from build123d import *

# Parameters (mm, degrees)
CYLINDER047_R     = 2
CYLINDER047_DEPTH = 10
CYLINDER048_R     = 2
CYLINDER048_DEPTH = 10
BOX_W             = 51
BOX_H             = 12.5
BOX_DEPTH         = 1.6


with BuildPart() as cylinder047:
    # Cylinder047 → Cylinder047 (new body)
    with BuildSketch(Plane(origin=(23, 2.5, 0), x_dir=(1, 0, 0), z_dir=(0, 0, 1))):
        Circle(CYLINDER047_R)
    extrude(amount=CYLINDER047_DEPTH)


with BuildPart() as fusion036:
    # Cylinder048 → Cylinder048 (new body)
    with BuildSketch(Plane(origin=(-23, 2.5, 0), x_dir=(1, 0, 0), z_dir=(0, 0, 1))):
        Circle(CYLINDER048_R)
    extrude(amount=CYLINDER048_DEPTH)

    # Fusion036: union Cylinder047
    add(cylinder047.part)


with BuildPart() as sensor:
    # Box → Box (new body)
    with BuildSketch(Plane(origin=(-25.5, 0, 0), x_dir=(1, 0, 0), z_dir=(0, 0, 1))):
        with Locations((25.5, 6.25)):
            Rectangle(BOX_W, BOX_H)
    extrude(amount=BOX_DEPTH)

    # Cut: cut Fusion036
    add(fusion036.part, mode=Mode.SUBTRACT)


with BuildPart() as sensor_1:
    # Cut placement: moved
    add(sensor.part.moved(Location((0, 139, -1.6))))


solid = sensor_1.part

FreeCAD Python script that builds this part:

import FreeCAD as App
import Part
import Sketcher
from FreeCAD import Vector


def add_polygon(sketch, points):
    """Adds a closed chain of lines whose ends are joined by coincident constraints."""
    first, n = sketch.GeometryCount, len(points)
    for a, b in zip(points, points[1:] + points[:1]):
        sketch.addGeometry(Part.LineSegment(App.Vector(*a, 0), App.Vector(*b, 0)), False)
    for i in range(n):
        sketch.addConstraint(Sketcher.Constraint("Coincident", first + i, 2, first + (i + 1) % n, 1))

doc = App.newDocument("Part")
params = doc.addObject("Spreadsheet::Sheet", "Params")
for row, (alias, value) in enumerate([
    ("sketch1_diameter", "4 mm"),
    ("pad1_length", "10 mm"),
    ("sketch2_diameter", "4 mm"),
    ("pad2_length", "10 mm"),
    ("sketch3_width", "51 mm"),
    ("sketch3_height", "12.5 mm"),
    ("pad3_length", "1.6 mm"),
], start=1):
    params.set(f"A{row}", alias)
    params.set(f"B{row}", "=" + value)
    params.setAlias(f"B{row}", alias)

body = doc.addObject("PartDesign::Body", "Body")

sketch1 = body.newObject("Sketcher::SketchObject", "Sketch")
sketch1.AttachmentSupport = (doc.getObject("XY_Plane"), [""])
sketch1.MapMode = "FlatFace"
sketch1.addGeometry(Part.Circle(Vector(23, 2.5, 0), Vector(0, 0, 1), 2), False)
sketch1.addConstraint(Sketcher.Constraint("Diameter", 0, 4.0))
sketch1.addConstraint(Sketcher.Constraint("DistanceX", -1, 1, 0, 3, 23.0))
sketch1.addConstraint(Sketcher.Constraint("DistanceY", -1, 1, 0, 3, 2.5))
sketch1.setExpression("Constraints[0]", "Params.sketch1_diameter")
pad1 = body.newObject("PartDesign::Pad", "Pad")
pad1.Profile = sketch1
pad1.setExpression("Length", "Params.pad1_length")
body2 = doc.addObject("PartDesign::Body", "Body001")
body2.AllowCompound = True

sketch2 = body2.newObject("Sketcher::SketchObject", "Sketch001")
sketch2.AttachmentSupport = (doc.getObject("XY_Plane001"), [""])
sketch2.MapMode = "FlatFace"
sketch2.addGeometry(Part.Circle(Vector(-23, 2.5, 0), Vector(0, 0, 1), 2), False)
sketch2.addConstraint(Sketcher.Constraint("Diameter", 0, 4.0))
sketch2.addConstraint(Sketcher.Constraint("DistanceX", 0, 3, -1, 1, 23.0))
sketch2.addConstraint(Sketcher.Constraint("DistanceY", -1, 1, 0, 3, 2.5))
sketch2.setExpression("Constraints[0]", "Params.sketch2_diameter")
pad2 = body2.newObject("PartDesign::Pad", "Pad001")
pad2.Profile = sketch2
pad2.setExpression("Length", "Params.pad2_length")
doc.recompute()

boolean = body2.newObject("PartDesign::Boolean", "Boolean")
boolean.Type = "Fuse"
boolean.addObjects([body])
body3 = doc.addObject("PartDesign::Body", "Body002")

sketch3 = body3.newObject("Sketcher::SketchObject", "Sketch002")
sketch3.AttachmentSupport = (doc.getObject("XY_Plane002"), [""])
sketch3.MapMode = "FlatFace"
add_polygon(sketch3, [(-26, 12), (-26, 0), (26, 0), (26, 12)])
sketch3.addConstraint(Sketcher.Constraint("Vertical", 0))
sketch3.addConstraint(Sketcher.Constraint("Horizontal", 1))
sketch3.addConstraint(Sketcher.Constraint("Vertical", 2))
sketch3.addConstraint(Sketcher.Constraint("Horizontal", 3))
sketch3.addConstraint(Sketcher.Constraint("Symmetric", 0, 2, 1, 2, -1, 1))
sketch3.addConstraint(Sketcher.Constraint("DistanceX", 1, 1, 1, 2, 51.0))
sketch3.addConstraint(Sketcher.Constraint("DistanceY", 0, 2, 0, 1, 12.5))
sketch3.setExpression("Constraints[9]", "Params.sketch3_width")
sketch3.setExpression("Constraints[10]", "Params.sketch3_height")
pad3 = body3.newObject("PartDesign::Pad", "Pad002")
pad3.Profile = sketch3
pad3.setExpression("Length", "Params.pad3_length")
doc.recompute()

boolean2 = body3.newObject("PartDesign::Boolean", "Boolean001")
boolean2.Type = "Cut"
boolean2.addObjects([body2])
body4 = doc.addObject("PartDesign::Body", "Body003")
doc.recompute()

body3.Placement = App.Placement(Vector(0, 139, -1.6), App.Rotation(Vector(0, 0, 1), 0))
boolean3 = body4.newObject("PartDesign::Boolean", "Boolean002")
boolean3.Type = "Fuse"
boolean3.addObjects([body3])

doc.recompute()
